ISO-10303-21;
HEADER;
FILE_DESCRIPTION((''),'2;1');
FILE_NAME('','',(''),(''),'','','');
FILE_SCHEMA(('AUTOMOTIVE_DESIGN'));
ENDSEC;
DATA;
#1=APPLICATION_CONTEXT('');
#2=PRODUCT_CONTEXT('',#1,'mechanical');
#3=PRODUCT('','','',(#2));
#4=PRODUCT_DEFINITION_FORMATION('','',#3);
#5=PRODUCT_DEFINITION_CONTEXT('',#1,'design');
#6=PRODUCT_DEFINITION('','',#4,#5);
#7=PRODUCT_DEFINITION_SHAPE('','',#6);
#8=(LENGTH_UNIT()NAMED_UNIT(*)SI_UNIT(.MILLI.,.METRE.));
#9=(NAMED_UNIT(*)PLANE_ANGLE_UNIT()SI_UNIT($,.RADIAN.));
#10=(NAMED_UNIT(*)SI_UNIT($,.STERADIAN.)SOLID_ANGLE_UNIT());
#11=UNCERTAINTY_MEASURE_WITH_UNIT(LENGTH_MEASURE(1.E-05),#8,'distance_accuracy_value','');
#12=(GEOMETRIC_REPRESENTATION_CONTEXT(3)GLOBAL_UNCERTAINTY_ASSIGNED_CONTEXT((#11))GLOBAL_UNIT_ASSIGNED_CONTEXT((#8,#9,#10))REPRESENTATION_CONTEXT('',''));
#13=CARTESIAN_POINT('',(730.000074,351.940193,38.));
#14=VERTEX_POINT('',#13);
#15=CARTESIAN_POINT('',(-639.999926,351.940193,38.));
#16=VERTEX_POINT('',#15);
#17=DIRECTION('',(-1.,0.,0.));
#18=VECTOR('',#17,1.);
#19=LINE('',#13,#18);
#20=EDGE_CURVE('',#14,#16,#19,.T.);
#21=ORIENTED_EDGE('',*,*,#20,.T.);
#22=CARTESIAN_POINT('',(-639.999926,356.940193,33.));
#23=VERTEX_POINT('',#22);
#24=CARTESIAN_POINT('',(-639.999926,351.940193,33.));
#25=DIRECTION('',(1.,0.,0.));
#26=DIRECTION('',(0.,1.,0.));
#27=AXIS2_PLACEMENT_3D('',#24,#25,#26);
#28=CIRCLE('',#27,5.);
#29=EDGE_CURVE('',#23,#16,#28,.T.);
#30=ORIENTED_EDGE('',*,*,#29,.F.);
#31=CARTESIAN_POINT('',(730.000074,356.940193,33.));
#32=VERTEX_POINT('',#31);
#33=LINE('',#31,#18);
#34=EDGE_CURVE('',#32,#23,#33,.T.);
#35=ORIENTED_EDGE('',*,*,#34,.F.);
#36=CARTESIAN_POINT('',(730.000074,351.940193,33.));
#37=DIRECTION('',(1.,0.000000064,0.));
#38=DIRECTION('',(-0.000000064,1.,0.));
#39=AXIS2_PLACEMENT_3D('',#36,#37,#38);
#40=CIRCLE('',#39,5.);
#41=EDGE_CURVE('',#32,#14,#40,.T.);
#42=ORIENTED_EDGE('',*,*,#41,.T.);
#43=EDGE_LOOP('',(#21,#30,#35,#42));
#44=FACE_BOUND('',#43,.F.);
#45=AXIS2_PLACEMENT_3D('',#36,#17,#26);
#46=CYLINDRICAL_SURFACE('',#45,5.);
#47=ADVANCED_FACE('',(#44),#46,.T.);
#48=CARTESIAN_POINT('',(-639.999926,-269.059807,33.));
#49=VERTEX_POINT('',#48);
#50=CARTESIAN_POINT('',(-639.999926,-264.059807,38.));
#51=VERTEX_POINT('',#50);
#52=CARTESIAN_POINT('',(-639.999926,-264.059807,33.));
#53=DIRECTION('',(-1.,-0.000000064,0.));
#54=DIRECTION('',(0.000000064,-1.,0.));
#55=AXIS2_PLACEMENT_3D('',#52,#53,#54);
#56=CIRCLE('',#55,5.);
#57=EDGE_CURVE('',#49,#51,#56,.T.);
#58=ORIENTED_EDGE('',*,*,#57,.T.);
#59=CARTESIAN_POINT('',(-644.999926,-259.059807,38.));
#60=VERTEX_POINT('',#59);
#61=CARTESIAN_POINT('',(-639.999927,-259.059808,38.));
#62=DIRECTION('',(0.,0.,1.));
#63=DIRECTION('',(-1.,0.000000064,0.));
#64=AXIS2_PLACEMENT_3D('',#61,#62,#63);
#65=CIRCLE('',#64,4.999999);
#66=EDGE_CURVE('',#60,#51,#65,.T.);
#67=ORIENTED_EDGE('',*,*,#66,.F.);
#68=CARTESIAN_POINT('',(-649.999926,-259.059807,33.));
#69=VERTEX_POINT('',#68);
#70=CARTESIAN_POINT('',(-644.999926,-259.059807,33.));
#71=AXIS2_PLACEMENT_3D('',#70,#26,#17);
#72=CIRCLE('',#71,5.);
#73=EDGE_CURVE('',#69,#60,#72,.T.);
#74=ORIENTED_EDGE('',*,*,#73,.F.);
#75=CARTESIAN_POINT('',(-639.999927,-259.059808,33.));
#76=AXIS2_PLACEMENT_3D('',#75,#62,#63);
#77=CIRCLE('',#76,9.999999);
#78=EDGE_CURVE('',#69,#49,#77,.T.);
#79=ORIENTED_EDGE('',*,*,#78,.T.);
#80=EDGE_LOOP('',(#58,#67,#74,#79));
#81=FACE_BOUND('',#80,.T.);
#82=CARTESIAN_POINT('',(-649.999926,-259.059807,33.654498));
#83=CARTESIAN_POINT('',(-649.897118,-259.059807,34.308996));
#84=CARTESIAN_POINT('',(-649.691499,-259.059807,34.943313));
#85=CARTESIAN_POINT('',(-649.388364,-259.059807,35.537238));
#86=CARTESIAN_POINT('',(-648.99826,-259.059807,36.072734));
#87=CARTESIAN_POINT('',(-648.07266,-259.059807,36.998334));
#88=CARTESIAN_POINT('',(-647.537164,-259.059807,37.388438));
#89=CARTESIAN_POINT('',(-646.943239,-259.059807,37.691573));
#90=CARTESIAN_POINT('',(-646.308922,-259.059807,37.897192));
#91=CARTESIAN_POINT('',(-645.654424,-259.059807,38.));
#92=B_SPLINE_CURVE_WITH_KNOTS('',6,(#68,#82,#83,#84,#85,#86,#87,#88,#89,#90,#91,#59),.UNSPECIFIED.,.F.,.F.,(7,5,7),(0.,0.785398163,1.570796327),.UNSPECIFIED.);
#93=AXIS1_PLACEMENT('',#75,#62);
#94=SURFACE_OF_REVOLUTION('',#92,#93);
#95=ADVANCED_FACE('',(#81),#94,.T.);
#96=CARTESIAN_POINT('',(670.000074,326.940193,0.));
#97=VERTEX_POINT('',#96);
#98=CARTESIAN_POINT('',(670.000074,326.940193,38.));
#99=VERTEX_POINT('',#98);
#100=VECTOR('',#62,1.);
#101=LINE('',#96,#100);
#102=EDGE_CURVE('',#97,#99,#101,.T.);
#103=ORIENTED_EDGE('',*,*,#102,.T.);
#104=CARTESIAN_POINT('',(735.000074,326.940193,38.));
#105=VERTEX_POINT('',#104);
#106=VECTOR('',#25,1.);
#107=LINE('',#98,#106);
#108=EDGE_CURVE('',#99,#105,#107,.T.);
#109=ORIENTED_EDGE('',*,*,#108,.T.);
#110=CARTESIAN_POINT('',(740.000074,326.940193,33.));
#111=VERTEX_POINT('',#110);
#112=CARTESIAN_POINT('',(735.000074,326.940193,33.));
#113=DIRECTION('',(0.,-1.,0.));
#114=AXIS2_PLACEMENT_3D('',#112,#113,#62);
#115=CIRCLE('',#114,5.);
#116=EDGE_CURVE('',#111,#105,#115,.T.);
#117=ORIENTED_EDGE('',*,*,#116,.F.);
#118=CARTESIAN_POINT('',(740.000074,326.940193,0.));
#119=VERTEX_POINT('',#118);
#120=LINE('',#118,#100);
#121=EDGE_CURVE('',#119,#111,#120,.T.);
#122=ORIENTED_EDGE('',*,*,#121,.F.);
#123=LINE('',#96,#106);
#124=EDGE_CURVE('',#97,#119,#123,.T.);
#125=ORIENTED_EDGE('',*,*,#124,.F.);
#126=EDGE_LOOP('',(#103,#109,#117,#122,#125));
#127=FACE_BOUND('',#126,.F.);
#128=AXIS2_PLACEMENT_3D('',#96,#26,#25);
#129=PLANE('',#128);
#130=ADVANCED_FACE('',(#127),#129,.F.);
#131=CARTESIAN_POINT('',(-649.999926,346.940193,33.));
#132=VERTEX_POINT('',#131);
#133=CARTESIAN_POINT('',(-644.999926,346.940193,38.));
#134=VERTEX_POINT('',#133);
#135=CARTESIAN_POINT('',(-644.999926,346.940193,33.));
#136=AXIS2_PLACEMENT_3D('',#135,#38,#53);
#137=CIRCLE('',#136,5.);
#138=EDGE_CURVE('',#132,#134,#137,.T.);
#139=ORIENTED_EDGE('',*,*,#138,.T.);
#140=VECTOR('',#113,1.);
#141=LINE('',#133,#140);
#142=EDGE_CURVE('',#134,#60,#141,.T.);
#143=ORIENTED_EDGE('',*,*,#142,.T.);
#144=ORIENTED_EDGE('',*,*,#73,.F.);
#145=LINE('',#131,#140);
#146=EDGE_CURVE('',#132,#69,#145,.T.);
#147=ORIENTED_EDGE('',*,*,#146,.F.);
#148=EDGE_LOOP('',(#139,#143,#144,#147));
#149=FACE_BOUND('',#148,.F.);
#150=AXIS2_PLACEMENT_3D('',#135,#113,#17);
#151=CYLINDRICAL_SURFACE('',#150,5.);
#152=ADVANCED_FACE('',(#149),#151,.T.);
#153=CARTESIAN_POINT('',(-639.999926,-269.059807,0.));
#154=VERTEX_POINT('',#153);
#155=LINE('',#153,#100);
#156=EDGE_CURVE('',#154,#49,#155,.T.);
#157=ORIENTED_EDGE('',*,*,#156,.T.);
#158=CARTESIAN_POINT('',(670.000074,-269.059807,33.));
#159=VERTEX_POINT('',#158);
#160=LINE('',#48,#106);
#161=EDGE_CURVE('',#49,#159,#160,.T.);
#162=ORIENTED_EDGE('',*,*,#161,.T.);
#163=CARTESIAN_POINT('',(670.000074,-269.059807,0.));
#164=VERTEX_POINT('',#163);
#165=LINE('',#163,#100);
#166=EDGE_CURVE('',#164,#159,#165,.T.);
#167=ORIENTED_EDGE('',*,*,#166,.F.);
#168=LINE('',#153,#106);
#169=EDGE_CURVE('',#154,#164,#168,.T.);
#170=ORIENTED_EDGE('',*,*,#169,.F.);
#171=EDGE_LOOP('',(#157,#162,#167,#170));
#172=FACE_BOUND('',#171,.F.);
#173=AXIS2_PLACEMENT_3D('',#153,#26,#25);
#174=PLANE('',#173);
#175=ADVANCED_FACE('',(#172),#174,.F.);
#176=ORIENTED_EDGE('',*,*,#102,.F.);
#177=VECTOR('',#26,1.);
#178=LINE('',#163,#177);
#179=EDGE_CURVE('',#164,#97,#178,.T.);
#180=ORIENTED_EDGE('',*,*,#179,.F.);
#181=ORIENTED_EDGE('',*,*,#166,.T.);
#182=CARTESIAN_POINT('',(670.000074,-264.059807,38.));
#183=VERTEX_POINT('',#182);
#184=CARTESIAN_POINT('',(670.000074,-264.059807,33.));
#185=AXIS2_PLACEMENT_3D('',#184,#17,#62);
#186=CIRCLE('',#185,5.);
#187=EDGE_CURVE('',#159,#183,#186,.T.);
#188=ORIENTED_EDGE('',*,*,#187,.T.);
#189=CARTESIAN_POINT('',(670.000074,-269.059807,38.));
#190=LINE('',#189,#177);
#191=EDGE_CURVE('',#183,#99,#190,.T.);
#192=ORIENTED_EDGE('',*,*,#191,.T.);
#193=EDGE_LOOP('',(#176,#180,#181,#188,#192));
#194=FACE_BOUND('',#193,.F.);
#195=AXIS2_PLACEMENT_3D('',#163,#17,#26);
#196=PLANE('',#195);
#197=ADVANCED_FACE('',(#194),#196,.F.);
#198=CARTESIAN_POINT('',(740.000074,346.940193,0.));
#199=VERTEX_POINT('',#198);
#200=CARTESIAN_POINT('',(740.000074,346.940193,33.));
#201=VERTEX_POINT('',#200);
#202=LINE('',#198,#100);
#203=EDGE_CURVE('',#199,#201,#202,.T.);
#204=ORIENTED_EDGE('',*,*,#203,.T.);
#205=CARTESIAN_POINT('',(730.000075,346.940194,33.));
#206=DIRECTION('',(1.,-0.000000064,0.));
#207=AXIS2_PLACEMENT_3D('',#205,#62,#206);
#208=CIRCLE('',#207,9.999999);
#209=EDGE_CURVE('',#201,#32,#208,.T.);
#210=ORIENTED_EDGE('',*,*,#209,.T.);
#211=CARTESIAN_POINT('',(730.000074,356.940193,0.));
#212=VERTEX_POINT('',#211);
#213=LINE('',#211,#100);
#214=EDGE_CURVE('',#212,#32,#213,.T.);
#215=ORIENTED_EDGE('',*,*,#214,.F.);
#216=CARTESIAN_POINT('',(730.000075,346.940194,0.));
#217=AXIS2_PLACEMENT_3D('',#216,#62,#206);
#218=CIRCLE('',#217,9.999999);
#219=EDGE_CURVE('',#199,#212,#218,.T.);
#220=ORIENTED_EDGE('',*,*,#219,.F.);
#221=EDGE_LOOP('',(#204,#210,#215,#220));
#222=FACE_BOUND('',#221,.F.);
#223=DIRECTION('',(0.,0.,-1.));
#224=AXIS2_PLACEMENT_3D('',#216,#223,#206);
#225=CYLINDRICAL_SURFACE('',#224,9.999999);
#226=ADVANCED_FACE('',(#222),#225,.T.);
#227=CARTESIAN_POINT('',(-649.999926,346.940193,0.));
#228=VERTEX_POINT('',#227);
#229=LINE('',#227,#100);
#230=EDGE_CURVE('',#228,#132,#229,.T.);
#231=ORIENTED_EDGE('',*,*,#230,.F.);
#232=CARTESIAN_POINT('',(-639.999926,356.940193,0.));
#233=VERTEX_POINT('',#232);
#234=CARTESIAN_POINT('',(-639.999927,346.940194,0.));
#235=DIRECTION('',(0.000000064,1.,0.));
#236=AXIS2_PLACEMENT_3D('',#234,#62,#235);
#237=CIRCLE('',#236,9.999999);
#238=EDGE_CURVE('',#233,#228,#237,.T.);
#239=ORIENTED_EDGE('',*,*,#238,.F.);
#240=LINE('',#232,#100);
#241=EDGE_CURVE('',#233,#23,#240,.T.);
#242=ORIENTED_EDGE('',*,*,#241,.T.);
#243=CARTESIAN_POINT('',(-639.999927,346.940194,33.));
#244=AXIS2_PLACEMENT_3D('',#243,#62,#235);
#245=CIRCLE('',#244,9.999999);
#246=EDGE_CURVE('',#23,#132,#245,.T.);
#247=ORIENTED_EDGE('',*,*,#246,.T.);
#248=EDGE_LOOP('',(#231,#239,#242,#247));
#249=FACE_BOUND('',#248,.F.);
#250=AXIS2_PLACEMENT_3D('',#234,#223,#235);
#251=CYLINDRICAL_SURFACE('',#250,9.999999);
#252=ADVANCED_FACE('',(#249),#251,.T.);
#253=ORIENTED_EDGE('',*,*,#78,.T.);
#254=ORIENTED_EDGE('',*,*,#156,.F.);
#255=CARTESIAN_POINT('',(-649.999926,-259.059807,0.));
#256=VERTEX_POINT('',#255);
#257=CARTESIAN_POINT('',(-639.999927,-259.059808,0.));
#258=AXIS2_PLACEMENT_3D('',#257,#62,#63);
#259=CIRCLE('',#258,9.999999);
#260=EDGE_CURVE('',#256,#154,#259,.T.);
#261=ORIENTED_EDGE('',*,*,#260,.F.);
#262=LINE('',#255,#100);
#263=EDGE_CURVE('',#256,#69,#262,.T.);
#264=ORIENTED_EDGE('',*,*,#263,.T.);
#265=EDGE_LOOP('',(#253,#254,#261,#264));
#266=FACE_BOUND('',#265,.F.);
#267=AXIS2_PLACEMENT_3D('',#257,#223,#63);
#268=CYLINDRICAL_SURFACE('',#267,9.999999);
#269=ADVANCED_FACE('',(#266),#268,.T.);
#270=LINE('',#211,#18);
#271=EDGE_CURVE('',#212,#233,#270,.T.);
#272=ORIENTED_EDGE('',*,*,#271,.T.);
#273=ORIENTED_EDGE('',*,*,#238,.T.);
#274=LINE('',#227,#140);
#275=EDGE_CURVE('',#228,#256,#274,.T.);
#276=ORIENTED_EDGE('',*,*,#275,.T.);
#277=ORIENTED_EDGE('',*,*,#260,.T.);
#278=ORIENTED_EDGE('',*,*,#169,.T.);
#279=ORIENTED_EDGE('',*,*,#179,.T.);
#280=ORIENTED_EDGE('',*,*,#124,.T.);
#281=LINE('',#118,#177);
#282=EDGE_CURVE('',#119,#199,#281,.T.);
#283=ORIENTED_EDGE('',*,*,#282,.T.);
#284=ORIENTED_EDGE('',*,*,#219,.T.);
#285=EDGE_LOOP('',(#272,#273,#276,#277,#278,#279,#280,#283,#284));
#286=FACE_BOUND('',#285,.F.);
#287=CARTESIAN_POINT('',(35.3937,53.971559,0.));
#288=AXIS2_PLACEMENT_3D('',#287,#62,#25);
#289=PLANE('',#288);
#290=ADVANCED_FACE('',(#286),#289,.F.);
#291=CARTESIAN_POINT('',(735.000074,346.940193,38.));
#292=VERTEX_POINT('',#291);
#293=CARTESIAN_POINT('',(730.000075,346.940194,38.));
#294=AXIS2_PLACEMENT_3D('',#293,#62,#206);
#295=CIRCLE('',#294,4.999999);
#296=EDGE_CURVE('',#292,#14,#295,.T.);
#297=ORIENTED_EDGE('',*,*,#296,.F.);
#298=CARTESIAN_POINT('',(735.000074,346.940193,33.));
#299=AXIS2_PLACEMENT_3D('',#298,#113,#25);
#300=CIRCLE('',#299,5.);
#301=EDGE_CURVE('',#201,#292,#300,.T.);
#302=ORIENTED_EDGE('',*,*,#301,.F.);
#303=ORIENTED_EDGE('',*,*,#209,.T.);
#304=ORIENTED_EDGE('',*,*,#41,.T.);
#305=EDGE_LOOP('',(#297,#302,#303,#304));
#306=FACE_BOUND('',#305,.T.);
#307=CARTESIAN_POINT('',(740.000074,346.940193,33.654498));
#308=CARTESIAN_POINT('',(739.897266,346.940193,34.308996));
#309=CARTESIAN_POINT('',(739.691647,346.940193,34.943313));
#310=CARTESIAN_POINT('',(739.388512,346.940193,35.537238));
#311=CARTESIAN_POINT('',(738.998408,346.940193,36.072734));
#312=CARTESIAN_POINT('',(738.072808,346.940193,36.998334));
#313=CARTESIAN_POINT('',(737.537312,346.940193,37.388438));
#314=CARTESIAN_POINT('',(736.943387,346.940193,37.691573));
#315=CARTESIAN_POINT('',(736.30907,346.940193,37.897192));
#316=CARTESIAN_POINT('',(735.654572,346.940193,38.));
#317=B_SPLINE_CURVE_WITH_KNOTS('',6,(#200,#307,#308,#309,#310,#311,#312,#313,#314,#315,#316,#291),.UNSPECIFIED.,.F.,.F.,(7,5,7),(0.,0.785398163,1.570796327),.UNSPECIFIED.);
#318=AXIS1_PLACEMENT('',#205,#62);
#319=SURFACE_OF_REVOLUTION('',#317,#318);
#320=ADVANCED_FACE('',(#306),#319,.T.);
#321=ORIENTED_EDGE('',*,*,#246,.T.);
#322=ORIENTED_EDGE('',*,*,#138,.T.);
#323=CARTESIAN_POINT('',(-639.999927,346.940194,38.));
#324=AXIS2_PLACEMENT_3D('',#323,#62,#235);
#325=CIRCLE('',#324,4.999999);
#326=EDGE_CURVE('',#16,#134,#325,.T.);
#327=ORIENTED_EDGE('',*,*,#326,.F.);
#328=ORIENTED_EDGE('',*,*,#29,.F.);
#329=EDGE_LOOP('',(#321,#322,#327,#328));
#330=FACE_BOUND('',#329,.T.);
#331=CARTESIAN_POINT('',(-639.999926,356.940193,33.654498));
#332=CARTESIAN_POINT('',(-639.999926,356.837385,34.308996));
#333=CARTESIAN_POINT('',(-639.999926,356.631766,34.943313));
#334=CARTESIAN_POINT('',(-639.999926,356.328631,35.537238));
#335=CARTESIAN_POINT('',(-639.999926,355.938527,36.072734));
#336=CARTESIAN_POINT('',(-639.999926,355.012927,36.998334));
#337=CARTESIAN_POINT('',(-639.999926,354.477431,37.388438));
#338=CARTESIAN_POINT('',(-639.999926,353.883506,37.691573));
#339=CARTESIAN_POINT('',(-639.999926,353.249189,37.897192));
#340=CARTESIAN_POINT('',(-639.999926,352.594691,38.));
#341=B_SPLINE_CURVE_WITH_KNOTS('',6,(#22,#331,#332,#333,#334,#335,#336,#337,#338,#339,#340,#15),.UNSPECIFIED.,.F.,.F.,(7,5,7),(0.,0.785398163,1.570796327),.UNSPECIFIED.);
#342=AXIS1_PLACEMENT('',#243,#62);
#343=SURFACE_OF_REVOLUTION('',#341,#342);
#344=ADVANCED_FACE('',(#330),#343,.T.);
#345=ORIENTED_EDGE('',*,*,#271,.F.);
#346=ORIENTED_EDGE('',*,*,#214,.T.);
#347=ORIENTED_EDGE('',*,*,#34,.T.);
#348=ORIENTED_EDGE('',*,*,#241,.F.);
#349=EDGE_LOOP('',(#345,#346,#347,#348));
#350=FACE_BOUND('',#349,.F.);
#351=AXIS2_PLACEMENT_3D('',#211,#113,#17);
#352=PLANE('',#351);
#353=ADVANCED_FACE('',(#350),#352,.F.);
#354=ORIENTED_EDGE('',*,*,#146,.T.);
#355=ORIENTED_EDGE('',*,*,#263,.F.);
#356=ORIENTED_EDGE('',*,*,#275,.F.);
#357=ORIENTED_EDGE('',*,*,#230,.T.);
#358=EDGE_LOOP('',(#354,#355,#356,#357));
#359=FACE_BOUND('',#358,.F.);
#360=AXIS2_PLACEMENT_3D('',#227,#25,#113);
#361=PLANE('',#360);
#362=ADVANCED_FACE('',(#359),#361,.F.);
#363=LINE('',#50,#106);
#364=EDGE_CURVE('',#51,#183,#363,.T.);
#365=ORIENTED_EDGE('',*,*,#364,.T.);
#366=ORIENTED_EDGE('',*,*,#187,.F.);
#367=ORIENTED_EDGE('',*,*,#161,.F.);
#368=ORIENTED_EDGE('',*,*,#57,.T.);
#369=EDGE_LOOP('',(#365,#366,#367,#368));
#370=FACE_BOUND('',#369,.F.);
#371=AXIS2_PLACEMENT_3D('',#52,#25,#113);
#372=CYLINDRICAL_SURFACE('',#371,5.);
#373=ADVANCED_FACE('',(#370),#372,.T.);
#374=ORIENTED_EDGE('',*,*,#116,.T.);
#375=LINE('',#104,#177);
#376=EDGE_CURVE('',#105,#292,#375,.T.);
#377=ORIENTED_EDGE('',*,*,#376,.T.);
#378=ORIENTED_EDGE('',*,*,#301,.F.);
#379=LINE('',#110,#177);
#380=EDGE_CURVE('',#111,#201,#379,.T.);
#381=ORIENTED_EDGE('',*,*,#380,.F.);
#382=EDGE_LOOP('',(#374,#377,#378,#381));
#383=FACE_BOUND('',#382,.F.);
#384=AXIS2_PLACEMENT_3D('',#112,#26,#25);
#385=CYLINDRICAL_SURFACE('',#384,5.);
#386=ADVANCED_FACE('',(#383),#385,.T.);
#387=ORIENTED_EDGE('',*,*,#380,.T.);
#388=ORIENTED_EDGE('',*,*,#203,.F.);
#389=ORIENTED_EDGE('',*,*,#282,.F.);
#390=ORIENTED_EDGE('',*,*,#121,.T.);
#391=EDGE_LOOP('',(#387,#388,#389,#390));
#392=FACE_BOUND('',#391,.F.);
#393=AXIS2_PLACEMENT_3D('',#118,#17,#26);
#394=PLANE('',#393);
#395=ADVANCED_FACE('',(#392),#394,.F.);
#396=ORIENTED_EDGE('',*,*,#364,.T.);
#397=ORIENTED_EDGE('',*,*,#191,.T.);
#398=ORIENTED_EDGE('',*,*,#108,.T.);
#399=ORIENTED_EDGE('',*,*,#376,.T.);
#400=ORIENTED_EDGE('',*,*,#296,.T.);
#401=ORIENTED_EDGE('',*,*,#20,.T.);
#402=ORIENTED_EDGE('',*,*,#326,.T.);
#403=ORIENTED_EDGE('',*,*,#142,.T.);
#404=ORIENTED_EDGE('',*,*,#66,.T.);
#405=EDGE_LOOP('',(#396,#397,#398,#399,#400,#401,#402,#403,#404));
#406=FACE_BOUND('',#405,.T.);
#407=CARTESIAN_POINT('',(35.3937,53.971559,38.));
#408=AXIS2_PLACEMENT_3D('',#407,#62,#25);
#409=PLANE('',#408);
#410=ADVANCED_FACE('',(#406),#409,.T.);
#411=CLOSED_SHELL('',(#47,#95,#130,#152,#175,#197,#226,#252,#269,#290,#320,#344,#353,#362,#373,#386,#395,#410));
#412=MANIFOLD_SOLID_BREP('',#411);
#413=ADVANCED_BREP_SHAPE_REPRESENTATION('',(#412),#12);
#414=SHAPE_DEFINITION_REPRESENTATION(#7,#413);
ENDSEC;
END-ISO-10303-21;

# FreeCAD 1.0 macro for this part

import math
import FreeCAD as App
import Part
import Sketcher

V = App.Vector
Q = App.Units.Quantity


def edges_at(feature, points):
    """Names of the edges that pass closest to the given points."""
    edges = feature.Shape.Edges
    near = lambda p: min(range(len(edges)), key=lambda i: edges[i].distToShape(Part.Vertex(*p))[0])
    return sorted({f"Edge{near(p) + 1}" for p in points})

doc = App.newDocument("Part")
body = doc.addObject("PartDesign::Body", "Body")

# Sketch on XY plane
sketch1 = body.newObject("Sketcher::SketchObject", "Sketch")
sketch1.AttachmentSupport = (doc.getObject("XY_Plane"), [""])
sketch1.MapMode = "FlatFace"
sketch1.addGeometry([
    Part.LineSegment(V(730, 357, 0), V(-640, 357, 0)),  # 0
    Part.ArcOfCircle(Part.Circle(V(-640, 347, 0), V(0, 0, 1), 10), math.radians(90), math.radians(180)),  # 1
    Part.LineSegment(V(-650, 347, 0), V(-650, -259, 0)),  # 2
    Part.ArcOfCircle(Part.Circle(V(-640, -259, 0), V(0, 0, 1), 10), math.radians(180), math.radians(270)),  # 3
    Part.LineSegment(V(-640, -269, 0), V(670, -269, 0)),  # 4
    Part.LineSegment(V(670, -269, 0), V(670, 327, 0)),  # 5
    Part.LineSegment(V(670, 327, 0), V(740, 327, 0)),  # 6
    Part.LineSegment(V(740, 327, 0), V(740, 347, 0)),  # 7
    Part.ArcOfCircle(Part.Circle(V(730, 347, 0), V(0, 0, 1), 10), math.radians(0), math.radians(90)),  # 8
], False)
sketch1.addConstraint([
    Sketcher.Constraint("Tangent", 0, 2, 1, 1),
    Sketcher.Constraint("Tangent", 1, 2, 2, 1),
    Sketcher.Constraint("Tangent", 2, 2, 3, 1),
    Sketcher.Constraint("Tangent", 3, 2, 4, 1),
    Sketcher.Constraint("Coincident", 4, 2, 5, 1),
    Sketcher.Constraint("Coincident", 5, 2, 6, 1),
    Sketcher.Constraint("Coincident", 6, 2, 7, 1),
    Sketcher.Constraint("Tangent", 7, 2, 8, 1),
    Sketcher.Constraint("Tangent", 8, 2, 0, 1),
    Sketcher.Constraint("Horizontal", 0),
    Sketcher.Constraint("Vertical", 2),
    Sketcher.Constraint("Horizontal", 4),
    Sketcher.Constraint("Vertical", 5),
    Sketcher.Constraint("Horizontal", 6),
    Sketcher.Constraint("Vertical", 7),
    Sketcher.Constraint("Equal", 1, 3),
    Sketcher.Constraint("Equal", 3, 8),
    Sketcher.Constraint("Radius", 1, Q("9.999999 mm")),
    Sketcher.Constraint("DistanceX", 0, 2, 0, 1, Q("1370 mm")),
    Sketcher.Constraint("DistanceX", 4, 1, 4, 2, Q("1310 mm")),
    Sketcher.Constraint("DistanceY", 2, 2, 2, 1, Q("606 mm")),
    Sketcher.Constraint("DistanceY", 5, 1, 5, 2, Q("596 mm")),
    Sketcher.Constraint("DistanceX", 1, 3, -1, 1, Q("639.999927 mm")),
    Sketcher.Constraint("DistanceY", -1, 1, 1, 3, Q("346.940194 mm")),
])
pad1 = body.newObject("PartDesign::Pad", "Pad")
pad1.Profile = sketch1
pad1.Length = 38
doc.recompute()

fillet = body.newObject("PartDesign::Fillet", "Fillet")
fillet.Base = (pad1, edges_at(pad1, [(-650, 43.94, 38)]))
fillet.Radius = 5

doc.recompute()
